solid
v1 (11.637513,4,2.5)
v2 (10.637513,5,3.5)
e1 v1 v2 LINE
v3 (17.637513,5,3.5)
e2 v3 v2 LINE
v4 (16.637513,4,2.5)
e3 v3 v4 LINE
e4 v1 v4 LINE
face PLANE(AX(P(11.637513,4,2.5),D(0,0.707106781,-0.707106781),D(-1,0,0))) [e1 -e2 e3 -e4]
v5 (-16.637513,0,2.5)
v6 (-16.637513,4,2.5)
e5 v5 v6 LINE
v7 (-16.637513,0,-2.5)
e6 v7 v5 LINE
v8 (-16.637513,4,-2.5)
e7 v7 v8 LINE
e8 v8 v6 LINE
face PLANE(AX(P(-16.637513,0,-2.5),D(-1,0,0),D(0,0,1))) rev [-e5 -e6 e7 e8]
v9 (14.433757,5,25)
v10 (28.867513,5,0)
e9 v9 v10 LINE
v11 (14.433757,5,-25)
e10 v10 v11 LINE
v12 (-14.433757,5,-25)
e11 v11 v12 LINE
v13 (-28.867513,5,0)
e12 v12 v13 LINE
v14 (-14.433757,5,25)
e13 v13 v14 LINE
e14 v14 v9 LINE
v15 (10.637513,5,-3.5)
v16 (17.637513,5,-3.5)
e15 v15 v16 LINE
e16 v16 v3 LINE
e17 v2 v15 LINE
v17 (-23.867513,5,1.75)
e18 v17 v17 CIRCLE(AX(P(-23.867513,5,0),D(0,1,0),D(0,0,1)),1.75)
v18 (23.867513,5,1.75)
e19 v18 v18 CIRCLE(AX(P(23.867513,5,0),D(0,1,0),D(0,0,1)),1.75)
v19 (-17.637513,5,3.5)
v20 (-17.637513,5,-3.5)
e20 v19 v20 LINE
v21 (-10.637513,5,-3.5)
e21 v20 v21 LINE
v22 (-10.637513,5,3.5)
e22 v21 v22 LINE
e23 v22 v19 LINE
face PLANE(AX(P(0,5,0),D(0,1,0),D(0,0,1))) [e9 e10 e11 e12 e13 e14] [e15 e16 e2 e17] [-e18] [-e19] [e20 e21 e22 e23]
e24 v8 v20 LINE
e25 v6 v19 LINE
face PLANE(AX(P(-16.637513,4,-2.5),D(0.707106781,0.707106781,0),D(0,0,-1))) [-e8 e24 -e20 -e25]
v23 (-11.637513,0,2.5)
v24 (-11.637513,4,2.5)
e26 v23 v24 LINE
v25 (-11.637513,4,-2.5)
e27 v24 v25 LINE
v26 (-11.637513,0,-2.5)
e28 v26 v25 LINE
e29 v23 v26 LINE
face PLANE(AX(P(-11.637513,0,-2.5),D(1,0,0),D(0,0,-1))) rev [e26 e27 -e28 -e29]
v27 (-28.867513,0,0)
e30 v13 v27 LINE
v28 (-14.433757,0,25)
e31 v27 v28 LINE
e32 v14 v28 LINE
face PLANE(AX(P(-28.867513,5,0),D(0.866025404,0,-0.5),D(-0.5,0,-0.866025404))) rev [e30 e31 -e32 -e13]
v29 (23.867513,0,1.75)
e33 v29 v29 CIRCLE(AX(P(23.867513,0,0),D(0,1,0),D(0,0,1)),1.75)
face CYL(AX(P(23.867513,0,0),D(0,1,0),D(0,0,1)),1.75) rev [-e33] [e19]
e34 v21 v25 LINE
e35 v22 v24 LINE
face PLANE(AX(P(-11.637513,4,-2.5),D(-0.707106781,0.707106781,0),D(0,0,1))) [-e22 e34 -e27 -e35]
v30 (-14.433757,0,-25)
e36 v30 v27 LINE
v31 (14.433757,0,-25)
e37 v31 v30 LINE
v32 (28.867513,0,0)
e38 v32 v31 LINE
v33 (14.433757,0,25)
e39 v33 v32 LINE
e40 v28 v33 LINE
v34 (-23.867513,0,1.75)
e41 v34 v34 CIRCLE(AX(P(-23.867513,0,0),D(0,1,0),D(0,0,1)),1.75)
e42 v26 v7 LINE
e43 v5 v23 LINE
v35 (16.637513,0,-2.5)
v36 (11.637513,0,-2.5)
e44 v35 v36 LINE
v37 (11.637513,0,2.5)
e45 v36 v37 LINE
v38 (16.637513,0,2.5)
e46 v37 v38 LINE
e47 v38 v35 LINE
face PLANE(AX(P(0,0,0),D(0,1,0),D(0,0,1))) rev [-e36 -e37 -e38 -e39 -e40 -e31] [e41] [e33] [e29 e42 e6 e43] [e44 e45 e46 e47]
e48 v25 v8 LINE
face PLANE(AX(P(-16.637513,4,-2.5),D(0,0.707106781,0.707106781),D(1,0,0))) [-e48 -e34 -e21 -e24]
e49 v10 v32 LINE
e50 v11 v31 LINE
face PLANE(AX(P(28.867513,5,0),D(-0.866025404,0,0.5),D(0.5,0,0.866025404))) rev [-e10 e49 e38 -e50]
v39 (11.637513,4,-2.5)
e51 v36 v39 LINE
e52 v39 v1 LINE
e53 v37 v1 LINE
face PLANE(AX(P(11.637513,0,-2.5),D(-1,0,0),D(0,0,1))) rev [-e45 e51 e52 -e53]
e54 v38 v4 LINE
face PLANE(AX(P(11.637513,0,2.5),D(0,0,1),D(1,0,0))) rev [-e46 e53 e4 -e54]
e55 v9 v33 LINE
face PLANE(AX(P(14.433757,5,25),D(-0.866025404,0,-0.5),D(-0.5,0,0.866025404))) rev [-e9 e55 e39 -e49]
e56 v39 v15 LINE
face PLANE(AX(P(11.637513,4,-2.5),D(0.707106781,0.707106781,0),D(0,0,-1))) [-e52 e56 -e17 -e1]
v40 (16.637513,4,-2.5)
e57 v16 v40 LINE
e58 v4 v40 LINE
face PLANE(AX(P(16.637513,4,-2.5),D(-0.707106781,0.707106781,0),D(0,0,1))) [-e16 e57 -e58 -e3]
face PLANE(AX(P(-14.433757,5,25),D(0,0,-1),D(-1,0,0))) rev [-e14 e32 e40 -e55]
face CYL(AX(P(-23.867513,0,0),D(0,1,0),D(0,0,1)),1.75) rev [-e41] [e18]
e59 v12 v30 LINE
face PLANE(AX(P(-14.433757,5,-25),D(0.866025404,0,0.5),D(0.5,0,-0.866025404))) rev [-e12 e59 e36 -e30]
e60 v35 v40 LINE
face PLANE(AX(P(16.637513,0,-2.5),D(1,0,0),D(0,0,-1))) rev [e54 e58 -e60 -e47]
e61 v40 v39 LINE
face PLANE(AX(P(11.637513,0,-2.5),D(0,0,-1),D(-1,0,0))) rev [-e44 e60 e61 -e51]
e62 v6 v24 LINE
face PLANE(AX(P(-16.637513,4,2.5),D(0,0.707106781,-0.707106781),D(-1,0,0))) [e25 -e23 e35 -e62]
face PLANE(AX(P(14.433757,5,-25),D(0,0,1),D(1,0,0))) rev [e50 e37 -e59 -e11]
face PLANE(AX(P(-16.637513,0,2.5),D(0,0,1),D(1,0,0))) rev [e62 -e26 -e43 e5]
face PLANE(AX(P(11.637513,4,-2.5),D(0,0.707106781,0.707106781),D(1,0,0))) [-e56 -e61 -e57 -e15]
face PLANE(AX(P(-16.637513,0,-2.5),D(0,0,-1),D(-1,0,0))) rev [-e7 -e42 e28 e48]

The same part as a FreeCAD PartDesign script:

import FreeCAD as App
import Part
import Sketcher

V = App.Vector
Q = App.Units.Quantity


def edges_at(feature, points):
    """Names of the edges that pass closest to the given points."""
    edges = feature.Shape.Edges
    near = lambda p: min(range(len(edges)), key=lambda i: edges[i].distToShape(Part.Vertex(*p))[0])
    return sorted({f"Edge{near(p) + 1}" for p in points})

doc = App.newDocument("Part")
body = doc.addObject("PartDesign::Body", "Body")

sketch1 = doc.addObject("Sketcher::SketchObject", "Sketch")
body.addObject(sketch1)
sketch1.AttachmentSupport = (doc.XZ_Plane, [""])
sketch1.MapMode = "FlatFace"
sketch1.addGeometry(Part.LineSegment(V(-28.867513, 0, 0), V(-14.433757, 25, 0)), False)
sketch1.addGeometry(Part.LineSegment(V(-14.433757, 25, 0), V(14.433757, 25, 0)), False)
sketch1.addGeometry(Part.LineSegment(V(14.433757, 25, 0), V(28.867513, 0, 0)), False)
sketch1.addGeometry(Part.LineSegment(V(28.867513, 0, 0), V(14.433757, -25, 0)), False)
sketch1.addGeometry(Part.LineSegment(V(14.433757, -25, 0), V(-14.433757, -25, 0)), False)
sketch1.addGeometry(Part.LineSegment(V(-14.433757, -25, 0), V(-28.867513, 0, 0)), False)
sketch1.addConstraint(Sketcher.Constraint("Coincident", 0, 2, 1, 1))
sketch1.addConstraint(Sketcher.Constraint("Coincident", 1, 2, 2, 1))
sketch1.addConstraint(Sketcher.Constraint("Coincident", 2, 2, 3, 1))
sketch1.addConstraint(Sketcher.Constraint("Coincident", 3, 2, 4, 1))
sketch1.addConstraint(Sketcher.Constraint("Coincident", 4, 2, 5, 1))
sketch1.addConstraint(Sketcher.Constraint("Coincident", 5, 2, 0, 1))
sketch1.addConstraint(Sketcher.Constraint("Horizontal", 1))
sketch1.addConstraint(Sketcher.Constraint("Horizontal", 4))
sketch1.addConstraint(Sketcher.Constraint("Symmetric", 0, 2, 3, 2, -1, 1))
sketch1.addConstraint(Sketcher.Constraint("Symmetric", 2, 2, 5, 2, -1, 1))
sketch1.addConstraint(Sketcher.Constraint("PointOnObject", 2, 2, -1))
sketch1.addConstraint(Sketcher.Constraint("Parallel", 2, 5))
sketch1.addConstraint(Sketcher.Constraint("Vertical", 1, 2, 3, 2))
sketch1.addConstraint(Sketcher.Constraint("Angle", 0, Q("60 deg")))
sketch1.addConstraint(Sketcher.Constraint("DistanceY", -1, 1, 0, 2, 25.0))
sketch1.addConstraint(Sketcher.Constraint("DistanceX", 1, 1, 1, 2, 28.867513))
pad1 = doc.addObject("PartDesign::Pad", "Pad")
body.addObject(pad1)
pad1.Profile = sketch1
pad1.Length = 5
pad1.Reversed = True

sketch2 = doc.addObject("Sketcher::SketchObject", "Sketch001")
body.addObject(sketch2)
sketch2.AttachmentSupport = (doc.XZ_Plane, [""])
sketch2.MapMode = "FlatFace"
sketch2.AttachmentOffset = App.Placement(V(0, 0, -5), App.Rotation())
sketch2.addGeometry(Part.Circle(V(-23.867513, 0, 0), V(0, 0, 1), 1.75), False)
sketch2.addGeometry(Part.Circle(V(23.867513, 0, 0), V(0, 0, 1), 1.75), False)
sketch2.addGeometry(Part.LineSegment(V(-16.637513, -2.5, 0), V(-16.637513, 2.5, 0)), False)
sketch2.addGeometry(Part.LineSegment(V(-16.637513, 2.5, 0), V(-11.637513, 2.5, 0)), False)
sketch2.addGeometry(Part.LineSegment(V(-11.637513, 2.5, 0), V(-11.637513, -2.5, 0)), False)
sketch2.addGeometry(Part.LineSegment(V(-11.637513, -2.5, 0), V(-16.637513, -2.5, 0)), False)
sketch2.addGeometry(Part.LineSegment(V(11.637513, -2.5, 0), V(11.637513, 2.5, 0)), False)
sketch2.addGeometry(Part.LineSegment(V(11.637513, 2.5, 0), V(16.637513, 2.5, 0)), False)
sketch2.addGeometry(Part.LineSegment(V(16.637513, 2.5, 0), V(16.637513, -2.5, 0)), False)
sketch2.addGeometry(Part.LineSegment(V(16.637513, -2.5, 0), V(11.637513, -2.5, 0)), False)
sketch2.addConstraint(Sketcher.Constraint("Coincident", 2, 2, 3, 1))
sketch2.addConstraint(Sketcher.Constraint("Coincident", 3, 2, 4, 1))
sketch2.addConstraint(Sketcher.Constraint("Coincident", 4, 2, 5, 1))
sketch2.addConstraint(Sketcher.Constraint("Coincident", 5, 2, 2, 1))
sketch2.addConstraint(Sketcher.Constraint("Coincident", 6, 2, 7, 1))
sketch2.addConstraint(Sketcher.Constraint("Coincident", 7, 2, 8, 1))
sketch2.addConstraint(Sketcher.Constraint("Coincident", 8, 2, 9, 1))
sketch2.addConstraint(Sketcher.Constraint("Coincident", 9, 2, 6, 1))
sketch2.addConstraint(Sketcher.Constraint("Vertical", 2))
sketch2.addConstraint(Sketcher.Constraint("Horizontal", 3))
sketch2.addConstraint(Sketcher.Constraint("Vertical", 4))
sketch2.addConstraint(Sketcher.Constraint("Horizontal", 5))
sketch2.addConstraint(Sketcher.Constraint("Vertical", 6))
sketch2.addConstraint(Sketcher.Constraint("Horizontal", 7))
sketch2.addConstraint(Sketcher.Constraint("Vertical", 8))
sketch2.addConstraint(Sketcher.Constraint("Horizontal", 9))
sketch2.addConstraint(Sketcher.Constraint("Equal", 0, 1))
sketch2.addConstraint(Sketcher.Constraint("Symmetric", 0, 3, 1, 3, -1, 1))
sketch2.addConstraint(Sketcher.Constraint("Symmetric", 4, 2, 6, 2, -1, 1))
sketch2.addConstraint(Sketcher.Constraint("Symmetric", 2, 2, 8, 2, -1, 1))
sketch2.addConstraint(Sketcher.Constraint("PointOnObject", 0, 3, -1))
sketch2.addConstraint(Sketcher.Constraint("Horizontal", 3, 2, 6, 2))
sketch2.addConstraint(Sketcher.Constraint("Equal", 9, 2))
sketch2.addConstraint(Sketcher.Constraint("Diameter", 0, 3.5))
sketch2.addConstraint(Sketcher.Constraint("DistanceX", 3, 1, 3, 2, 5.0))
sketch2.addConstraint(Sketcher.Constraint("DistanceX", 0, 3, 2, 2, 7.23))
sketch2.addConstraint(Sketcher.Constraint("DistanceX", 0, 3, -1, 1, 23.867513))
pocket1 = doc.addObject("PartDesign::Pocket", "Pocket")
body.addObject(pocket1)
pocket1.Profile = sketch2
pocket1.Length = 5
pocket1.Reversed = True
doc.recompute()

chamfer = doc.addObject("PartDesign::Chamfer", "Chamfer")
body.addObject(chamfer)
chamfer.Base = (pocket1, edges_at(pocket1, [
    (-11.638, 5, 0),
    (-14.138, 5, -2.5),
    (-16.638, 5, 0),
    (-14.138, 5, 2.5),
    (16.638, 5, 0),
    (14.138, 5, -2.5),
    (11.638, 5, 0),
    (14.138, 5, 2.5),
]))
chamfer.Size = 1

doc.recompute()
